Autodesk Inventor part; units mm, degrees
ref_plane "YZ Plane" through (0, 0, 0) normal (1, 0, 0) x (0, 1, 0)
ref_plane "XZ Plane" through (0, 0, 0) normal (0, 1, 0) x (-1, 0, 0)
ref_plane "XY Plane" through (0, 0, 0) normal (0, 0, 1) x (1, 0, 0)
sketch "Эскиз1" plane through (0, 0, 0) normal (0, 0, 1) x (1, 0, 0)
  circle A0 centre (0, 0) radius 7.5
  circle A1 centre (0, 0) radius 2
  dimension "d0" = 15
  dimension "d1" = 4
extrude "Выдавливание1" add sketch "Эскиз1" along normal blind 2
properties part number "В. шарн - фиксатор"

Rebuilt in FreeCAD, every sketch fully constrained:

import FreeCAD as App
import Part
import Sketcher
from FreeCAD import Vector
Q = App.Units.Quantity

doc = App.newDocument("Part")
params = doc.addObject("Spreadsheet::Sheet", "Params")
for row, (alias, value) in enumerate([
    ("sketch1_diameter", "15 mm"),
    ("sketch1_diameter2", "4 mm"),
    ("pad1_length", "2 mm"),
], start=1):
    params.set(f"A{row}", alias)
    params.set(f"B{row}", "=" + value)
    params.setAlias(f"B{row}", alias)

body = doc.addObject("PartDesign::Body", "Body")

# Sketch on XY plane
sketch1 = body.newObject("Sketcher::SketchObject", "Sketch")
sketch1.AttachmentSupport = (doc.getObject("XY_Plane"), [""])
sketch1.MapMode = "FlatFace"
sketch1.addGeometry([
    Part.Circle(Vector(0, 0, 0), Vector(0, 0, 1), 7.5),
    Part.Circle(Vector(0, 0, 0), Vector(0, 0, 1), 2),
], False)
sketch1.addConstraint([
    Sketcher.Constraint("Coincident", 0, 3, -1, 1),
    Sketcher.Constraint("Coincident", 1, 3, -1, 1),
    Sketcher.Constraint("Diameter", 0, Q("15 mm")),
    Sketcher.Constraint("Diameter", 1, Q("4 mm")),
])
sketch1.setExpression("Constraints[2]", "Params.sketch1_diameter")
sketch1.setExpression("Constraints[3]", "Params.sketch1_diameter2")
pad1 = body.newObject("PartDesign::Pad", "Pad")
pad1.Profile = sketch1
pad1.setExpression("Length", "Params.pad1_length")

doc.recompute()
